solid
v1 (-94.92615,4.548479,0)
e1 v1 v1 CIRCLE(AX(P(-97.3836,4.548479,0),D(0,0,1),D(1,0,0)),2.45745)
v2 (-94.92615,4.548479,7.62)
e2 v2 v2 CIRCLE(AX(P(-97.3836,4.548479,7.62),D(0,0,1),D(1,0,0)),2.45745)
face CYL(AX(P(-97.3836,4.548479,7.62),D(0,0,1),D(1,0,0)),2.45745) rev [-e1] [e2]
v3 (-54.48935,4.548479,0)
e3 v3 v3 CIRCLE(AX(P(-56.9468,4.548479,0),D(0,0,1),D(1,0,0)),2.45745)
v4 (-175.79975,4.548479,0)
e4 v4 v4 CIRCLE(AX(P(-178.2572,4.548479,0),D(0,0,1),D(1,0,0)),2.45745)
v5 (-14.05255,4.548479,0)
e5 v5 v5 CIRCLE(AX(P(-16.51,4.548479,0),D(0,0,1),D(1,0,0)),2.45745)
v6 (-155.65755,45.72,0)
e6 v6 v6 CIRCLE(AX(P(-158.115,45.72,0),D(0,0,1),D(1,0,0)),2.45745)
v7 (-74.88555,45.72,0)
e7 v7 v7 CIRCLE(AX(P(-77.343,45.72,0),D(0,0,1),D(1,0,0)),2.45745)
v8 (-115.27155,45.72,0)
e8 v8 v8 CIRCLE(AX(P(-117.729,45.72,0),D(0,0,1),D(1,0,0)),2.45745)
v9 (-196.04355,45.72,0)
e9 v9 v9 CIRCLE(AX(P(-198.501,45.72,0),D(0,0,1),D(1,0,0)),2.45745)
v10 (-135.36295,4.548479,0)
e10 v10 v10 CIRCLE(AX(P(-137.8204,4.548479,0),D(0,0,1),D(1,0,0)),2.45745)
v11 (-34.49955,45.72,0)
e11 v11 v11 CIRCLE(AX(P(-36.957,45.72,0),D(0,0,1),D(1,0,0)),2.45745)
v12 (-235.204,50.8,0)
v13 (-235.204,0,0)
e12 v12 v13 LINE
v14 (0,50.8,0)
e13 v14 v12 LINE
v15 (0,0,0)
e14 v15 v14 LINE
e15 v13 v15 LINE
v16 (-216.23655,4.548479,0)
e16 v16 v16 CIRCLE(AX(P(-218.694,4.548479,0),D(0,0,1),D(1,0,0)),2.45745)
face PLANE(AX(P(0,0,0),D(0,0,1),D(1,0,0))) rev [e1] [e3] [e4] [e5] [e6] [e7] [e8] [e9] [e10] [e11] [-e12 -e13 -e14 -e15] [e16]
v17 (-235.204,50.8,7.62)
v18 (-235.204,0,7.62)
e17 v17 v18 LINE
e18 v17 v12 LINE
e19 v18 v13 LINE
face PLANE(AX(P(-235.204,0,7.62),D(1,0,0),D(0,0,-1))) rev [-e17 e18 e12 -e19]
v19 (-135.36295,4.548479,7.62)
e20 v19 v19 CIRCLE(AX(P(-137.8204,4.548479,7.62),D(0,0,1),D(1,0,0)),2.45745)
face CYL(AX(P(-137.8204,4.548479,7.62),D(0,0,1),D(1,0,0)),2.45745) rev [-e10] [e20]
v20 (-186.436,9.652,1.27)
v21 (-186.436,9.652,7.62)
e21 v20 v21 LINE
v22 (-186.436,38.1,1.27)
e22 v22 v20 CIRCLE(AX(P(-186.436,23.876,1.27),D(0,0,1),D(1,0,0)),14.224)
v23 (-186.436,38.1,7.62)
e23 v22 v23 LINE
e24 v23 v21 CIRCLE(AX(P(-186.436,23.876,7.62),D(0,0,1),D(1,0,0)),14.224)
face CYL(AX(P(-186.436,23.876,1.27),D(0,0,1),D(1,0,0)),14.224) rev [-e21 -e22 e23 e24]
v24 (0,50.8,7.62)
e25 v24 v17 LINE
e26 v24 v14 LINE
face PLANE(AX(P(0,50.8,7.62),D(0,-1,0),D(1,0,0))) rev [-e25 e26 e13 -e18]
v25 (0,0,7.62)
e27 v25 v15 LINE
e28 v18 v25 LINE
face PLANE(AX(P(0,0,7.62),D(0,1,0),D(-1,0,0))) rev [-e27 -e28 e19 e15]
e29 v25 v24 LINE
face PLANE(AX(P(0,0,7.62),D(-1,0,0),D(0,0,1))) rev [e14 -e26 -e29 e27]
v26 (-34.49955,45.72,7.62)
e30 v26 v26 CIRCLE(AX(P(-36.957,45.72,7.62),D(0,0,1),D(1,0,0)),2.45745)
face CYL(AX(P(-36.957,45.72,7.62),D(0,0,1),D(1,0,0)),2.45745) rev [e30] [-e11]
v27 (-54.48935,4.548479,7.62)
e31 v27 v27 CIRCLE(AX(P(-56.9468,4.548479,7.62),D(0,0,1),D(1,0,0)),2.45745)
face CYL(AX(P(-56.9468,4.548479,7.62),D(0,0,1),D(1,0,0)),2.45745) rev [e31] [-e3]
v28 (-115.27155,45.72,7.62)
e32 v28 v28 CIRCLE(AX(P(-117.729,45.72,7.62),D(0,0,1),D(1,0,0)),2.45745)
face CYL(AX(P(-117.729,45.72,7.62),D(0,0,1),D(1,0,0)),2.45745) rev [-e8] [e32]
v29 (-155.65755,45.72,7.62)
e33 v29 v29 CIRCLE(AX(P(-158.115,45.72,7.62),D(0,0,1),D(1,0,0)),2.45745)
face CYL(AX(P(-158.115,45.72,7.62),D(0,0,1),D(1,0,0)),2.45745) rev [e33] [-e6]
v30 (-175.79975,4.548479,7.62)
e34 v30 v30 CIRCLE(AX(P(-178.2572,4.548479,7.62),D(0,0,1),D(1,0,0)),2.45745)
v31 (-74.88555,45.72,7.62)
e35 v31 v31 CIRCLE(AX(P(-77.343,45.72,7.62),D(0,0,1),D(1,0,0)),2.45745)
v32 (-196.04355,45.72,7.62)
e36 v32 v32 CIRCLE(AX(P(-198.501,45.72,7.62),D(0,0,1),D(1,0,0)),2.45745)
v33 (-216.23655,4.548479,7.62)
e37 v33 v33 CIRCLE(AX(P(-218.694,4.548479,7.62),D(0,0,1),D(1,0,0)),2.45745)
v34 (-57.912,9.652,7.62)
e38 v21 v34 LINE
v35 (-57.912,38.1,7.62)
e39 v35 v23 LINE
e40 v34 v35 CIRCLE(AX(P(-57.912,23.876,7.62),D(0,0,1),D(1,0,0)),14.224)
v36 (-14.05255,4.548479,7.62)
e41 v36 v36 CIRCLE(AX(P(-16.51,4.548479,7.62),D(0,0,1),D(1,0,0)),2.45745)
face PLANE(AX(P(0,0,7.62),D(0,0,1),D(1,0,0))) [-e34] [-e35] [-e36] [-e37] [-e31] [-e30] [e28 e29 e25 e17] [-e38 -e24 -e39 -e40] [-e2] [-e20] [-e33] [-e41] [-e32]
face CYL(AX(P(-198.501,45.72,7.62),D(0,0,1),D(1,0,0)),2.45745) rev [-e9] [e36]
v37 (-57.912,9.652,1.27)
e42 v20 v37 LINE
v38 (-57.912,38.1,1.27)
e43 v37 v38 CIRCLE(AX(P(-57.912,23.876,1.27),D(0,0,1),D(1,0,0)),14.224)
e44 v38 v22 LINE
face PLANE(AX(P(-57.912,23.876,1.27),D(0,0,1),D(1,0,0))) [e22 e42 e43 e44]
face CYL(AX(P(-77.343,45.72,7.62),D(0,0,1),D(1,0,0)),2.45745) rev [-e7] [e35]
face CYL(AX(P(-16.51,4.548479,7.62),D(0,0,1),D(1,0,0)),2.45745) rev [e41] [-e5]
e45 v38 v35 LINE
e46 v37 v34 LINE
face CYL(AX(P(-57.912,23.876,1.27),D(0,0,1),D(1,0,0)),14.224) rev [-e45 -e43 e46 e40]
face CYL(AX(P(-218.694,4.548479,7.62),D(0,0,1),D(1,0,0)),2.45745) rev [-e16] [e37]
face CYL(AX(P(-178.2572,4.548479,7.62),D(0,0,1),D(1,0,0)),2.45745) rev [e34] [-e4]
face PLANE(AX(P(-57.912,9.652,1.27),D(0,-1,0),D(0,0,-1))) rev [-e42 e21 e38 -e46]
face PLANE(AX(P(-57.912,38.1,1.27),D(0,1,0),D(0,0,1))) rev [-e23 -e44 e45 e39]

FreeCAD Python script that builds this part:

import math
import FreeCAD as App
import Part
import Sketcher
Q = App.Units.Quantity


def add_polygon(sketch, points):
    """Adds a closed chain of lines whose ends are joined by coincident constraints."""
    first, n = sketch.GeometryCount, len(points)
    for a, b in zip(points, points[1:] + points[:1]):
        sketch.addGeometry(Part.LineSegment(App.Vector(*a, 0), App.Vector(*b, 0)), False)
    for i in range(n):
        sketch.addConstraint(Sketcher.Constraint("Coincident", first + i, 2, first + (i + 1) % n, 1))

doc = App.newDocument("Part")
params = doc.addObject("Spreadsheet::Sheet", "Params")
for row, (alias, value) in enumerate([
    ("sketch1_height", "2 in"),
    ("sketch1_width", "9.26 in"),
    ("pad1_length", "0.3 in"),
    ("sketch2_radius", "0.56 in"),
    ("sketch2_width", "5.06 in"),
    ("pocket1_length", "0.25 in"),
    ("hole_diameter", "0.1935 in"),
], start=1):
    params.set(f"A{row}", alias)
    params.set(f"B{row}", "=" + value)
    params.setAlias(f"B{row}", alias)

body = doc.addObject("PartDesign::Body", "Body")

sketch1 = doc.addObject("Sketcher::SketchObject", "Sketch")
body.addObject(sketch1)
sketch1.AttachmentSupport = (doc.XY_Plane, [""])
sketch1.MapMode = "FlatFace"
add_polygon(sketch1, [(-235, 51), (-235, 0), (0, 0), (0, 51)])
sketch1.addConstraint([
    Sketcher.Constraint("Vertical", 0),
    Sketcher.Constraint("Horizontal", 1),
    Sketcher.Constraint("Vertical", 2),
    Sketcher.Constraint("Horizontal", 3),
    Sketcher.Constraint("Coincident", 1, 2, -1, 1),
    Sketcher.Constraint("DistanceY", 0, 2, 0, 1, Q("2 in")),
    Sketcher.Constraint("DistanceX", 1, 1, 1, 2, Q("9.26 in")),
])
sketch1.setExpression("Constraints[9]", "Params.sketch1_height")
sketch1.setExpression("Constraints[10]", "Params.sketch1_width")
pad1 = doc.addObject("PartDesign::Pad", "Pad")
body.addObject(pad1)
pad1.Profile = sketch1
pad1.setExpression("Length", "Params.pad1_length")

sketch2 = doc.addObject("Sketcher::SketchObject", "Sketch001")
body.addObject(sketch2)
sketch2.AttachmentSupport = (doc.XY_Plane, [""])
sketch2.MapMode = "FlatFace"
sketch2.AttachmentOffset = App.Placement(App.Vector(0, 0, 0.3 * 25.4), App.Rotation())
sketch2.addGeometry([
    Part.LineSegment(App.Vector(-186, 10, 0), App.Vector(-58, 10, 0)),
    Part.ArcOfCircle(Part.Circle(App.Vector(-58, 24, 0), App.Vector(0, 0, 1), 14), math.radians(-90), math.radians(90)),
    Part.LineSegment(App.Vector(-58, 38, 0), App.Vector(-186, 38, 0)),
    Part.ArcOfCircle(Part.Circle(App.Vector(-186, 24, 0), App.Vector(0, 0, 1), 14), math.radians(90), math.radians(270)),
], False)
sketch2.addConstraint([
    Sketcher.Constraint("Tangent", 0, 2, 1, 1),
    Sketcher.Constraint("Tangent", 1, 2, 2, 1),
    Sketcher.Constraint("Tangent", 2, 2, 3, 1),
    Sketcher.Constraint("Tangent", 3, 2, 0, 1),
    Sketcher.Constraint("Horizontal", 0),
    Sketcher.Constraint("Horizontal", 2),
    Sketcher.Constraint("Radius", 1, Q("0.56 in")),
    Sketcher.Constraint("DistanceX", 0, 1, 0, 2, Q("5.06 in")),
    Sketcher.Constraint("DistanceY", -1, 1, 1, 2, Q("1.5 in")),
    Sketcher.Constraint("DistanceX", 1, 3, -1, 1, Q("2.28 in")),
])
sketch2.setExpression("Constraints[6]", "Params.sketch2_radius")
sketch2.setExpression("Constraints[7]", "Params.sketch2_width")
pocket1 = doc.addObject("PartDesign::Pocket", "Pocket")
body.addObject(pocket1)
pocket1.Profile = sketch2
pocket1.setExpression("Length", "Params.pocket1_length")

sketch3 = doc.addObject("Sketcher::SketchObject", "Sketch002")
body.addObject(sketch3)
sketch3.AttachmentSupport = (doc.XY_Plane, [""])
sketch3.MapMode = "FlatFace"
sketch3.AttachmentOffset = App.Placement(App.Vector(0, 0, 0.3 * 25.4), App.Rotation())
sketch3.addGeometry([
    Part.Circle(App.Vector(-198.5, 45.7, 0), App.Vector(0, 0, 1), 2.5),
    Part.Circle(App.Vector(-158.1, 45.7, 0), App.Vector(0, 0, 1), 2.5),
    Part.Circle(App.Vector(-117.7, 45.7, 0), App.Vector(0, 0, 1), 2.5),
    Part.Circle(App.Vector(-77.3, 45.7, 0), App.Vector(0, 0, 1), 2.5),
    Part.Circle(App.Vector(-37, 45.7, 0), App.Vector(0, 0, 1), 2.5),
    Part.Circle(App.Vector(-218.7, 4.5, 0), App.Vector(0, 0, 1), 2.5),
    Part.Circle(App.Vector(-178.3, 4.5, 0), App.Vector(0, 0, 1), 2.5),
    Part.Circle(App.Vector(-137.8, 4.5, 0), App.Vector(0, 0, 1), 2.5),
    Part.Circle(App.Vector(-97.4, 4.5, 0), App.Vector(0, 0, 1), 2.5),
    Part.Circle(App.Vector(-56.9, 4.5, 0), App.Vector(0, 0, 1), 2.5),
    Part.Circle(App.Vector(-16.5, 4.5, 0), App.Vector(0, 0, 1), 2.5),
], False)
sketch3.addConstraint([
    Sketcher.Constraint("Equal", 0, 1),
    Sketcher.Constraint("Equal", 1, 2),
    Sketcher.Constraint("Equal", 2, 3),
    Sketcher.Constraint("Equal", 3, 4),
    Sketcher.Constraint("Equal", 4, 5),
    Sketcher.Constraint("Equal", 5, 6),
    Sketcher.Constraint("Equal", 6, 7),
    Sketcher.Constraint("Equal", 7, 8),
    Sketcher.Constraint("Equal", 8, 9),
    Sketcher.Constraint("Equal", 9, 10),
    Sketcher.Constraint("Horizontal", 0, 3, 1, 3),
    Sketcher.Constraint("Horizontal", 1, 3, 2, 3),
    Sketcher.Constraint("Horizontal", 2, 3, 3, 3),
    Sketcher.Constraint("Horizontal", 3, 3, 4, 3),
    Sketcher.Constraint("Horizontal", 5, 3, 6, 3),
    Sketcher.Constraint("Horizontal", 6, 3, 7, 3),
    Sketcher.Constraint("Horizontal", 7, 3, 8, 3),
    Sketcher.Constraint("Horizontal", 8, 3, 9, 3),
    Sketcher.Constraint("Horizontal", 9, 3, 10, 3),
    Sketcher.Constraint("Diameter", 0, Q("0.1935 in")),
    Sketcher.Constraint("DistanceY", -1, 1, 0, 3, Q("1.8 in")),
    Sketcher.Constraint("DistanceX", 5, 3, -1, 1, Q("8.61 in")),
    Sketcher.Constraint("DistanceX", 10, 3, -1, 1, Q("0.65 in")),
    Sketcher.Constraint("DistanceX", 0, 3, 1, 3, Q("1.59 in")),
    Sketcher.Constraint("DistanceX", 1, 3, 2, 3, Q("1.59 in")),
    Sketcher.Constraint("DistanceX", 2, 3, 3, 3, Q("1.59 in")),
    Sketcher.Constraint("DistanceX", 3, 3, 4, 3, Q("1.59 in")),
    Sketcher.Constraint("DistanceX", 0, 3, -1, 1, Q("7.815 in")),
    Sketcher.Constraint("DistanceX", 6, 3, -1, 1, Q("7.018 in")),
    Sketcher.Constraint("DistanceX", 7, 3, -1, 1, Q("5.426 in")),
    Sketcher.Constraint("DistanceX", 8, 3, -1, 1, Q("3.834 in")),
    Sketcher.Constraint("DistanceX", 9, 3, -1, 1, Q("2.242 in")),
    Sketcher.Constraint("DistanceY", -1, 1, 5, 3, Q("4.548479 mm")),
])
doc.recompute()
hole = doc.addObject("PartDesign::Hole", "Hole")
body.addObject(hole)
hole.Profile = sketch3
hole.ThreadType = "None"
hole.setExpression("Diameter", "Params.hole_diameter")
hole.DepthType = "ThroughAll"

doc.recompute()
